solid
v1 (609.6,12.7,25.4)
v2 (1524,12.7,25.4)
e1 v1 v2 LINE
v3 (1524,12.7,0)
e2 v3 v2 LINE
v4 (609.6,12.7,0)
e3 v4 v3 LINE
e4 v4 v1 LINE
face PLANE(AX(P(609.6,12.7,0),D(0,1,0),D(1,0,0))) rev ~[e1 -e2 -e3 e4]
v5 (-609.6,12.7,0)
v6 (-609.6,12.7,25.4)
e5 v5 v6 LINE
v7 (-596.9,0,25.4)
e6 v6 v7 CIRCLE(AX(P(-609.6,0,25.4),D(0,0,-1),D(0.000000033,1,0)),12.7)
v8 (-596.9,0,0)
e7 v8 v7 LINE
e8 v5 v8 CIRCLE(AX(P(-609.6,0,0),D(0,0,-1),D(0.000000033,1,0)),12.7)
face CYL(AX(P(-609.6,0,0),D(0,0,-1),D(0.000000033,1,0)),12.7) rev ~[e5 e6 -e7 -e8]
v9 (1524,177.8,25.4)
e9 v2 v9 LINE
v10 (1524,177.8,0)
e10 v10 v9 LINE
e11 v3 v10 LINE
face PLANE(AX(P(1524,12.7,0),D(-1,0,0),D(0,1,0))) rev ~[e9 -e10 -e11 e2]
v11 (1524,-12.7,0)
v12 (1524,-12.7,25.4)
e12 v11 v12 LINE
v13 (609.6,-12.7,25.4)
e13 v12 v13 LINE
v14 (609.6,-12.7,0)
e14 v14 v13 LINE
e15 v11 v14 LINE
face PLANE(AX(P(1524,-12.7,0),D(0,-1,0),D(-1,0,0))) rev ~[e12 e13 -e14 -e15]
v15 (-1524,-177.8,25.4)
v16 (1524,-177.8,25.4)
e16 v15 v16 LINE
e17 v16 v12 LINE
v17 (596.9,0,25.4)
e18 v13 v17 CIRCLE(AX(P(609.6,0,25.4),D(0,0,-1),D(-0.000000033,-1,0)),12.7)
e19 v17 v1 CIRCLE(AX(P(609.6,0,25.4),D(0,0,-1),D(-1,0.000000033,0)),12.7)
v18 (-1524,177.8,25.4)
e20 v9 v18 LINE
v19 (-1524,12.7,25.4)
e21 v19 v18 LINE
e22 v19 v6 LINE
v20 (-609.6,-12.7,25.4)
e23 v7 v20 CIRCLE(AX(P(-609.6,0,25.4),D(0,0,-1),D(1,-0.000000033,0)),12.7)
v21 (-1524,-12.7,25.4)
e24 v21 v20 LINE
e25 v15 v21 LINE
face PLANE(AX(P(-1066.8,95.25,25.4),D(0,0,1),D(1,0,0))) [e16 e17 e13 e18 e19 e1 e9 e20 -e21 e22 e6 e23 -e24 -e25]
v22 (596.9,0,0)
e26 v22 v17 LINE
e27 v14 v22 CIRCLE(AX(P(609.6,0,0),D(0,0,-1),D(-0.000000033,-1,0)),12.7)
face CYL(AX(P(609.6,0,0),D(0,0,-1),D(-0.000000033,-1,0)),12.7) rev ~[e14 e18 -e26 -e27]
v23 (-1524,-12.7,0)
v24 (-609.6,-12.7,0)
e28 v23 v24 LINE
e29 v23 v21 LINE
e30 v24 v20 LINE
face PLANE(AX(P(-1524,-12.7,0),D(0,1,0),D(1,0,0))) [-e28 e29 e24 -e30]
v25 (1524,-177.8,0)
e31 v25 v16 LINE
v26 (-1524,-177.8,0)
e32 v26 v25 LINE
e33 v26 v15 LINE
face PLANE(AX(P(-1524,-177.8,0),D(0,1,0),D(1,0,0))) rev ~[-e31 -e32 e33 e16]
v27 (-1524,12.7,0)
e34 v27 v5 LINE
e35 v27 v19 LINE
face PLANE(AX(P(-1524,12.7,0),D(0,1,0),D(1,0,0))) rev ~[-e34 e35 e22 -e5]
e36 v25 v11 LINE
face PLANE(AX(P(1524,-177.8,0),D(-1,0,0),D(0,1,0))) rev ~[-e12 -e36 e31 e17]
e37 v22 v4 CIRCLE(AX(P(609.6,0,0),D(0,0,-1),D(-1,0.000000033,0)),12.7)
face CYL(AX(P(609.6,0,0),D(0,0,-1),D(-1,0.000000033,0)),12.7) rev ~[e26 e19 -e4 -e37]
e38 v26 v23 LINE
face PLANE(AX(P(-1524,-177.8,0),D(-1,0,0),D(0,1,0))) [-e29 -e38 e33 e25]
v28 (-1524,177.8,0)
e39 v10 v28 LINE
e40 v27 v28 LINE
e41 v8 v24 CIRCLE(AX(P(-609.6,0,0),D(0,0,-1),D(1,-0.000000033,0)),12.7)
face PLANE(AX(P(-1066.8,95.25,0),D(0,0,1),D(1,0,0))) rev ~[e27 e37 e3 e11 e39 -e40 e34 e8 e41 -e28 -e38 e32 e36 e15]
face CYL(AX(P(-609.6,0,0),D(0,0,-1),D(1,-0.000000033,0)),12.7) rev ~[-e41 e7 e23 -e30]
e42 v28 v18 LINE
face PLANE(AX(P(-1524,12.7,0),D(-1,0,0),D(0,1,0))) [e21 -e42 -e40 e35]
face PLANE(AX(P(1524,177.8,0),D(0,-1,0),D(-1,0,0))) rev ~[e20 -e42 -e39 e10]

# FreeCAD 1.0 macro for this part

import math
import FreeCAD as App
import Part
import Sketcher
Q = App.Units.Quantity

doc = App.newDocument("Part")
body = doc.addObject("PartDesign::Body", "Body")

# Sketch on XY plane
sketch1 = body.newObject("Sketcher::SketchObject", "Sketch")
sketch1.AttachmentSupport = (doc.getObject("XY_Plane"), [""])
sketch1.MapMode = "FlatFace"
sketch1.addGeometry([
    Part.LineSegment(App.Vector(-1524, 178, 0), App.Vector(-1524, 13, 0)),  # 0
    Part.LineSegment(App.Vector(-1524, 13, 0), App.Vector(-610, 13, 0)),  # 1
    Part.ArcOfCircle(Part.Circle(App.Vector(-610, 0, 0), App.Vector(0, 0, 1), 13), math.radians(0), math.radians(90)),  # 2
    Part.ArcOfCircle(Part.Circle(App.Vector(-610, 0, 0), App.Vector(0, 0, 1), 13), math.radians(-90), math.radians(0)),  # 3
    Part.LineSegment(App.Vector(-610, -13, 0), App.Vector(-1524, -13, 0)),  # 4
    Part.LineSegment(App.Vector(-1524, -13, 0), App.Vector(-1524, -178, 0)),  # 5
    Part.LineSegment(App.Vector(-1524, -178, 0), App.Vector(1524, -178, 0)),  # 6
    Part.LineSegment(App.Vector(1524, -178, 0), App.Vector(1524, -13, 0)),  # 7
    Part.LineSegment(App.Vector(1524, -13, 0), App.Vector(610, -13, 0)),  # 8
    Part.ArcOfCircle(Part.Circle(App.Vector(610, 0, 0), App.Vector(0, 0, 1), 13), math.radians(-180), math.radians(-90)),  # 9
    Part.ArcOfCircle(Part.Circle(App.Vector(610, 0, 0), App.Vector(0, 0, 1), 13), math.radians(90), math.radians(180)),  # 10
    Part.LineSegment(App.Vector(610, 13, 0), App.Vector(1524, 13, 0)),  # 11
    Part.LineSegment(App.Vector(1524, 13, 0), App.Vector(1524, 178, 0)),  # 12
    Part.LineSegment(App.Vector(1524, 178, 0), App.Vector(-1524, 178, 0)),  # 13
], False)
sketch1.addConstraint([
    Sketcher.Constraint("Coincident", 0, 2, 1, 1),
    Sketcher.Constraint("Tangent", 1, 2, 2, 2),
    Sketcher.Constraint("Tangent", 2, 1, 3, 2),
    Sketcher.Constraint("Tangent", 3, 1, 4, 1),
    Sketcher.Constraint("Coincident", 4, 2, 5, 1),
    Sketcher.Constraint("Coincident", 5, 2, 6, 1),
    Sketcher.Constraint("Coincident", 6, 2, 7, 1),
    Sketcher.Constraint("Coincident", 7, 2, 8, 1),
    Sketcher.Constraint("Tangent", 8, 2, 9, 2),
    Sketcher.Constraint("Tangent", 9, 1, 10, 2),
    Sketcher.Constraint("Tangent", 10, 1, 11, 1),
    Sketcher.Constraint("Coincident", 11, 2, 12, 1),
    Sketcher.Constraint("Coincident", 12, 2, 13, 1),
    Sketcher.Constraint("Coincident", 13, 2, 0, 1),
    Sketcher.Constraint("Vertical", 0),
    Sketcher.Constraint("Horizontal", 1),
    Sketcher.Constraint("Horizontal", 4),
    Sketcher.Constraint("Vertical", 5),
    Sketcher.Constraint("Horizontal", 6),
    Sketcher.Constraint("Vertical", 7),
    Sketcher.Constraint("Horizontal", 8),
    Sketcher.Constraint("Horizontal", 11),
    Sketcher.Constraint("Vertical", 12),
    Sketcher.Constraint("Horizontal", 13),
    Sketcher.Constraint("Equal", 2, 3),
    Sketcher.Constraint("Equal", 3, 9),
    Sketcher.Constraint("Equal", 9, 10),
    Sketcher.Constraint("Symmetric", 2, 3, 9, 3, -1, 1),
    Sketcher.Constraint("Symmetric", 5, 2, 12, 2, -1, 1),
    Sketcher.Constraint("Symmetric", 4, 2, 7, 2, -2),
    Sketcher.Constraint("PointOnObject", 2, 1, -1),
    Sketcher.Constraint("PointOnObject", 9, 1, -1),
    Sketcher.Constraint("Vertical", 0, 2, 4, 2),
    Sketcher.Constraint("Radius", 2, Q("0.5 in")),
    Sketcher.Constraint("DistanceX", 1, 1, 1, 2, Q("36 in")),
    Sketcher.Constraint("DistanceX", 6, 1, 6, 2, Q("120 in")),
    Sketcher.Constraint("DistanceY", 0, 2, 0, 1, Q("6.5 in")),
])
pad1 = body.newObject("PartDesign::Pad", "Pad")
pad1.Profile = sketch1
pad1.Length = Q("1 in")

doc.recompute()
